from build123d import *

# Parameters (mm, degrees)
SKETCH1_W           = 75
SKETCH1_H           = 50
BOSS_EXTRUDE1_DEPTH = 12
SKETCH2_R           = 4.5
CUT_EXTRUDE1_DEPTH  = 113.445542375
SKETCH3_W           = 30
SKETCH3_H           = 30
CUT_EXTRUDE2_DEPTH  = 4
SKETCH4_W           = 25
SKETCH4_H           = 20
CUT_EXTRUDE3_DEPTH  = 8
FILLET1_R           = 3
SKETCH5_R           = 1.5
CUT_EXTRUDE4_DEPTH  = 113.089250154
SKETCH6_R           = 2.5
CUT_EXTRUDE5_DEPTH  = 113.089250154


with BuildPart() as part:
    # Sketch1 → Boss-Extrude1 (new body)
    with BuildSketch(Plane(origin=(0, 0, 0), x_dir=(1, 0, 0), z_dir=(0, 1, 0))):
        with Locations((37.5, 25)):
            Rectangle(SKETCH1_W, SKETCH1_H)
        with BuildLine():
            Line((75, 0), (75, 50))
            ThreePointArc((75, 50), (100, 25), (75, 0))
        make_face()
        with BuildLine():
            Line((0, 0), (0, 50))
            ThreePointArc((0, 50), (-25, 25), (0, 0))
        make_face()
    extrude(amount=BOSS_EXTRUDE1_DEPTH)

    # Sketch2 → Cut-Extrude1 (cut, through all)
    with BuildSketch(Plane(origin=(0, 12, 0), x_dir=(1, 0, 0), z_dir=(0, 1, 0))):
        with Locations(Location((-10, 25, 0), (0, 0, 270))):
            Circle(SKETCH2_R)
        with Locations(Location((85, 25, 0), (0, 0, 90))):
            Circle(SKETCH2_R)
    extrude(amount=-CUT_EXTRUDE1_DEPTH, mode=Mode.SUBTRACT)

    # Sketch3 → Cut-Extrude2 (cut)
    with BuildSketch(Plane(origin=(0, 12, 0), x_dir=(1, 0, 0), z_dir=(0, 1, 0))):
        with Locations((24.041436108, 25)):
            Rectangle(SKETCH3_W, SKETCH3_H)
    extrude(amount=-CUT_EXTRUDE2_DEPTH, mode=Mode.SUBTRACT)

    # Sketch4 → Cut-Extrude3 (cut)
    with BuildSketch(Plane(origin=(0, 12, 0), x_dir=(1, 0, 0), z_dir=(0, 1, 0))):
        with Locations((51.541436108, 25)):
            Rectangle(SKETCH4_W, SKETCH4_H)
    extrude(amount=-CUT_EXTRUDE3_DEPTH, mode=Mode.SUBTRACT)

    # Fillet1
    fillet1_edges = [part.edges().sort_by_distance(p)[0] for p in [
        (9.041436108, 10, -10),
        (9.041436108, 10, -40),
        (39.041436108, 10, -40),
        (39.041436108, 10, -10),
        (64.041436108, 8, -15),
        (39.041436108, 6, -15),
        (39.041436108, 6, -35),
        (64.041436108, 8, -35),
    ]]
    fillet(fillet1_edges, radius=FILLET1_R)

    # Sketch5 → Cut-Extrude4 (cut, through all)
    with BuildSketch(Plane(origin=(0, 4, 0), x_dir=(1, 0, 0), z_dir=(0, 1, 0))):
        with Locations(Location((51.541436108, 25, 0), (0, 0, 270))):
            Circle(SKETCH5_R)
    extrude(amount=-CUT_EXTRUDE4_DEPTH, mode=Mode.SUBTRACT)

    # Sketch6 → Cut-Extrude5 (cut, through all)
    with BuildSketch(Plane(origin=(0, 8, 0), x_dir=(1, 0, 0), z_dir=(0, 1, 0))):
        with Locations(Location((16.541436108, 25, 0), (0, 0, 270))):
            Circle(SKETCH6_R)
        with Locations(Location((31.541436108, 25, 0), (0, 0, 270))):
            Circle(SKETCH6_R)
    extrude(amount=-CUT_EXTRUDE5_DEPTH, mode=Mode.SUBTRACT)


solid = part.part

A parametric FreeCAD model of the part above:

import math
import FreeCAD as App
import Part
import Sketcher
from FreeCAD import Vector


def edges_at(feature, points):
    """Names of the edges that pass closest to the given points."""
    edges = feature.Shape.Edges
    near = lambda p: min(range(len(edges)), key=lambda i: edges[i].distToShape(Part.Vertex(*p))[0])
    return sorted({f"Edge{near(p) + 1}" for p in points})


def add_polygon(sketch, points):
    """Adds a closed chain of lines whose ends are joined by coincident constraints."""
    first, n = sketch.GeometryCount, len(points)
    for a, b in zip(points, points[1:] + points[:1]):
        sketch.addGeometry(Part.LineSegment(App.Vector(*a, 0), App.Vector(*b, 0)), False)
    for i in range(n):
        sketch.addConstraint(Sketcher.Constraint("Coincident", first + i, 2, first + (i + 1) % n, 1))

doc = App.newDocument("Part")
body = doc.addObject("PartDesign::Body", "Body")

sketch1 = body.newObject("Sketcher::SketchObject", "Sketch")
sketch1.AttachmentSupport = (doc.getObject("XZ_Plane"), [""])
sketch1.MapMode = "FlatFace"
sketch1.addGeometry([
    Part.LineSegment(Vector(0, 0, 0), Vector(75, 0, 0)),
    Part.ArcOfCircle(Part.Circle(Vector(75, -25, 0), Vector(0, 0, 1), 25), math.radians(-90), math.radians(90)),
    Part.LineSegment(Vector(75, -50, 0), Vector(0, -50, 0)),
    Part.ArcOfCircle(Part.Circle(Vector(0, -25, 0), Vector(0, 0, 1), 25), math.radians(90), math.radians(270)),
], False)
sketch1.addConstraint([
    Sketcher.Constraint("Tangent", 0, 2, 1, 2),
    Sketcher.Constraint("Tangent", 1, 1, 2, 1),
    Sketcher.Constraint("Tangent", 2, 2, 3, 2),
    Sketcher.Constraint("Tangent", 3, 1, 0, 1),
    Sketcher.Constraint("Horizontal", 0),
    Sketcher.Constraint("Horizontal", 2),
    Sketcher.Constraint("Coincident", 3, 1, -1, 1),
    Sketcher.Constraint("Radius", 1, 25.0),
    Sketcher.Constraint("DistanceX", 0, 1, 0, 2, 75.0),
])
pad1 = body.newObject("PartDesign::Pad", "Pad")
pad1.Profile = sketch1
pad1.Length = 12
pad1.Reversed = True

sketch2 = body.newObject("Sketcher::SketchObject", "Sketch001")
sketch2.AttachmentSupport = (doc.getObject("XZ_Plane"), [""])
sketch2.MapMode = "FlatFace"
sketch2.AttachmentOffset = App.Placement(Vector(0, 0, -12), App.Rotation())
sketch2.addGeometry([
    Part.Circle(Vector(-10, -25, 0), Vector(0, 0, 1), 4.5),
    Part.Circle(Vector(85, -25, 0), Vector(0, 0, 1), 4.5),
], False)
sketch2.addConstraint([
    Sketcher.Constraint("Equal", 0, 1),
    Sketcher.Constraint("Horizontal", 0, 3, 1, 3),
    Sketcher.Constraint("Diameter", 0, 9.0),
    Sketcher.Constraint("DistanceX", 0, 3, -1, 1, 10.0),
    Sketcher.Constraint("DistanceY", 0, 3, -1, 1, 25.0),
    Sketcher.Constraint("DistanceX", -1, 1, 1, 3, 85.0),
])
pocket1 = body.newObject("PartDesign::Pocket", "Pocket")
pocket1.Profile = sketch2
pocket1.Type = "ThroughAll"
pocket1.Reversed = True

sketch3 = body.newObject("Sketcher::SketchObject", "Sketch002")
sketch3.AttachmentSupport = (doc.getObject("XZ_Plane"), [""])
sketch3.MapMode = "FlatFace"
sketch3.AttachmentOffset = App.Placement(Vector(0, 0, -12), App.Rotation())
add_polygon(sketch3, [(9.041436, -40), (9.041436, -10), (39.041436, -10), (39.041436, -40)])
sketch3.addConstraint([
    Sketcher.Constraint("Vertical", 0),
    Sketcher.Constraint("Horizontal", 1),
    Sketcher.Constraint("Vertical", 2),
    Sketcher.Constraint("Horizontal", 3),
    Sketcher.Constraint("Equal", 3, 0),
    Sketcher.Constraint("DistanceX", 1, 1, 1, 2, 30.0),
    Sketcher.Constraint("DistanceY", 0, 2, -1, 1, 10.0),
    Sketcher.Constraint("DistanceX", -1, 1, 0, 2, 9.041436),
])
pocket2 = body.newObject("PartDesign::Pocket", "Pocket001")
pocket2.Profile = sketch3
pocket2.Length = 4
pocket2.Reversed = True

sketch4 = body.newObject("Sketcher::SketchObject", "Sketch003")
sketch4.AttachmentSupport = (doc.getObject("XZ_Plane"), [""])
sketch4.MapMode = "FlatFace"
sketch4.AttachmentOffset = App.Placement(Vector(0, 0, -12), App.Rotation())
add_polygon(sketch4, [(39.041436, -35), (39.041436, -15), (64.041436, -15), (64.041436, -35)])
sketch4.addConstraint([
    Sketcher.Constraint("Vertical", 0),
    Sketcher.Constraint("Horizontal", 1),
    Sketcher.Constraint("Vertical", 2),
    Sketcher.Constraint("Horizontal", 3),
    Sketcher.Constraint("DistanceX", 1, 1, 1, 2, 25.0),
    Sketcher.Constraint("DistanceY", 0, 1, 0, 2, 20.0),
    Sketcher.Constraint("DistanceY", 0, 2, -1, 1, 15.0),
    Sketcher.Constraint("DistanceX", -1, 1, 0, 2, 39.041436),
])
pocket3 = body.newObject("PartDesign::Pocket", "Pocket002")
pocket3.Profile = sketch4
pocket3.Length = 8
pocket3.Reversed = True
doc.recompute()

fillet = body.newObject("PartDesign::Fillet", "Fillet")
fillet.Base = (pocket3, edges_at(pocket3, [
    (9.041, 10, -10),
    (9.041, 10, -40),
    (39.041, 10, -40),
    (39.041, 10, -10),
    (64.041, 8, -15),
    (39.041, 6, -15),
    (39.041, 6, -35),
    (64.041, 8, -35),
]))
fillet.Radius = 3

sketch5 = body.newObject("Sketcher::SketchObject", "Sketch004")
sketch5.AttachmentSupport = (doc.getObject("XZ_Plane"), [""])
sketch5.MapMode = "FlatFace"
sketch5.AttachmentOffset = App.Placement(Vector(0, 0, -4), App.Rotation())
sketch5.addGeometry(Part.Circle(Vector(51.541436, -25, 0), Vector(0, 0, 1), 1.5), False)
sketch5.addConstraint([
    Sketcher.Constraint("Diameter", 0, 3.0),
    Sketcher.Constraint("DistanceY", 0, 3, -1, 1, 25.0),
    Sketcher.Constraint("DistanceX", -1, 1, 0, 3, 51.541436),
])
pocket4 = body.newObject("PartDesign::Pocket", "Pocket003")
pocket4.Profile = sketch5
pocket4.Type = "ThroughAll"
pocket4.Reversed = True

sketch6 = body.newObject("Sketcher::SketchObject", "Sketch005")
sketch6.AttachmentSupport = (doc.getObject("XZ_Plane"), [""])
sketch6.MapMode = "FlatFace"
sketch6.AttachmentOffset = App.Placement(Vector(0, 0, -8), App.Rotation())
sketch6.addGeometry([
    Part.Circle(Vector(16.541436, -25, 0), Vector(0, 0, 1), 2.5),
    Part.Circle(Vector(31.541436, -25, 0), Vector(0, 0, 1), 2.5),
], False)
sketch6.addConstraint([
    Sketcher.Constraint("Equal", 0, 1),
    Sketcher.Constraint("Horizontal", 0, 3, 1, 3),
    Sketcher.Constraint("Diameter", 0, 5.0),
    Sketcher.Constraint("DistanceY", 0, 3, -1, 1, 25.0),
    Sketcher.Constraint("DistanceX", 0, 3, 1, 3, 15.0),
    Sketcher.Constraint("DistanceX", -1, 1, 0, 3, 16.541436),
])
pocket5 = body.newObject("PartDesign::Pocket", "Pocket004")
pocket5.Profile = sketch6
pocket5.Type = "ThroughAll"
pocket5.Reversed = True

doc.recompute()
